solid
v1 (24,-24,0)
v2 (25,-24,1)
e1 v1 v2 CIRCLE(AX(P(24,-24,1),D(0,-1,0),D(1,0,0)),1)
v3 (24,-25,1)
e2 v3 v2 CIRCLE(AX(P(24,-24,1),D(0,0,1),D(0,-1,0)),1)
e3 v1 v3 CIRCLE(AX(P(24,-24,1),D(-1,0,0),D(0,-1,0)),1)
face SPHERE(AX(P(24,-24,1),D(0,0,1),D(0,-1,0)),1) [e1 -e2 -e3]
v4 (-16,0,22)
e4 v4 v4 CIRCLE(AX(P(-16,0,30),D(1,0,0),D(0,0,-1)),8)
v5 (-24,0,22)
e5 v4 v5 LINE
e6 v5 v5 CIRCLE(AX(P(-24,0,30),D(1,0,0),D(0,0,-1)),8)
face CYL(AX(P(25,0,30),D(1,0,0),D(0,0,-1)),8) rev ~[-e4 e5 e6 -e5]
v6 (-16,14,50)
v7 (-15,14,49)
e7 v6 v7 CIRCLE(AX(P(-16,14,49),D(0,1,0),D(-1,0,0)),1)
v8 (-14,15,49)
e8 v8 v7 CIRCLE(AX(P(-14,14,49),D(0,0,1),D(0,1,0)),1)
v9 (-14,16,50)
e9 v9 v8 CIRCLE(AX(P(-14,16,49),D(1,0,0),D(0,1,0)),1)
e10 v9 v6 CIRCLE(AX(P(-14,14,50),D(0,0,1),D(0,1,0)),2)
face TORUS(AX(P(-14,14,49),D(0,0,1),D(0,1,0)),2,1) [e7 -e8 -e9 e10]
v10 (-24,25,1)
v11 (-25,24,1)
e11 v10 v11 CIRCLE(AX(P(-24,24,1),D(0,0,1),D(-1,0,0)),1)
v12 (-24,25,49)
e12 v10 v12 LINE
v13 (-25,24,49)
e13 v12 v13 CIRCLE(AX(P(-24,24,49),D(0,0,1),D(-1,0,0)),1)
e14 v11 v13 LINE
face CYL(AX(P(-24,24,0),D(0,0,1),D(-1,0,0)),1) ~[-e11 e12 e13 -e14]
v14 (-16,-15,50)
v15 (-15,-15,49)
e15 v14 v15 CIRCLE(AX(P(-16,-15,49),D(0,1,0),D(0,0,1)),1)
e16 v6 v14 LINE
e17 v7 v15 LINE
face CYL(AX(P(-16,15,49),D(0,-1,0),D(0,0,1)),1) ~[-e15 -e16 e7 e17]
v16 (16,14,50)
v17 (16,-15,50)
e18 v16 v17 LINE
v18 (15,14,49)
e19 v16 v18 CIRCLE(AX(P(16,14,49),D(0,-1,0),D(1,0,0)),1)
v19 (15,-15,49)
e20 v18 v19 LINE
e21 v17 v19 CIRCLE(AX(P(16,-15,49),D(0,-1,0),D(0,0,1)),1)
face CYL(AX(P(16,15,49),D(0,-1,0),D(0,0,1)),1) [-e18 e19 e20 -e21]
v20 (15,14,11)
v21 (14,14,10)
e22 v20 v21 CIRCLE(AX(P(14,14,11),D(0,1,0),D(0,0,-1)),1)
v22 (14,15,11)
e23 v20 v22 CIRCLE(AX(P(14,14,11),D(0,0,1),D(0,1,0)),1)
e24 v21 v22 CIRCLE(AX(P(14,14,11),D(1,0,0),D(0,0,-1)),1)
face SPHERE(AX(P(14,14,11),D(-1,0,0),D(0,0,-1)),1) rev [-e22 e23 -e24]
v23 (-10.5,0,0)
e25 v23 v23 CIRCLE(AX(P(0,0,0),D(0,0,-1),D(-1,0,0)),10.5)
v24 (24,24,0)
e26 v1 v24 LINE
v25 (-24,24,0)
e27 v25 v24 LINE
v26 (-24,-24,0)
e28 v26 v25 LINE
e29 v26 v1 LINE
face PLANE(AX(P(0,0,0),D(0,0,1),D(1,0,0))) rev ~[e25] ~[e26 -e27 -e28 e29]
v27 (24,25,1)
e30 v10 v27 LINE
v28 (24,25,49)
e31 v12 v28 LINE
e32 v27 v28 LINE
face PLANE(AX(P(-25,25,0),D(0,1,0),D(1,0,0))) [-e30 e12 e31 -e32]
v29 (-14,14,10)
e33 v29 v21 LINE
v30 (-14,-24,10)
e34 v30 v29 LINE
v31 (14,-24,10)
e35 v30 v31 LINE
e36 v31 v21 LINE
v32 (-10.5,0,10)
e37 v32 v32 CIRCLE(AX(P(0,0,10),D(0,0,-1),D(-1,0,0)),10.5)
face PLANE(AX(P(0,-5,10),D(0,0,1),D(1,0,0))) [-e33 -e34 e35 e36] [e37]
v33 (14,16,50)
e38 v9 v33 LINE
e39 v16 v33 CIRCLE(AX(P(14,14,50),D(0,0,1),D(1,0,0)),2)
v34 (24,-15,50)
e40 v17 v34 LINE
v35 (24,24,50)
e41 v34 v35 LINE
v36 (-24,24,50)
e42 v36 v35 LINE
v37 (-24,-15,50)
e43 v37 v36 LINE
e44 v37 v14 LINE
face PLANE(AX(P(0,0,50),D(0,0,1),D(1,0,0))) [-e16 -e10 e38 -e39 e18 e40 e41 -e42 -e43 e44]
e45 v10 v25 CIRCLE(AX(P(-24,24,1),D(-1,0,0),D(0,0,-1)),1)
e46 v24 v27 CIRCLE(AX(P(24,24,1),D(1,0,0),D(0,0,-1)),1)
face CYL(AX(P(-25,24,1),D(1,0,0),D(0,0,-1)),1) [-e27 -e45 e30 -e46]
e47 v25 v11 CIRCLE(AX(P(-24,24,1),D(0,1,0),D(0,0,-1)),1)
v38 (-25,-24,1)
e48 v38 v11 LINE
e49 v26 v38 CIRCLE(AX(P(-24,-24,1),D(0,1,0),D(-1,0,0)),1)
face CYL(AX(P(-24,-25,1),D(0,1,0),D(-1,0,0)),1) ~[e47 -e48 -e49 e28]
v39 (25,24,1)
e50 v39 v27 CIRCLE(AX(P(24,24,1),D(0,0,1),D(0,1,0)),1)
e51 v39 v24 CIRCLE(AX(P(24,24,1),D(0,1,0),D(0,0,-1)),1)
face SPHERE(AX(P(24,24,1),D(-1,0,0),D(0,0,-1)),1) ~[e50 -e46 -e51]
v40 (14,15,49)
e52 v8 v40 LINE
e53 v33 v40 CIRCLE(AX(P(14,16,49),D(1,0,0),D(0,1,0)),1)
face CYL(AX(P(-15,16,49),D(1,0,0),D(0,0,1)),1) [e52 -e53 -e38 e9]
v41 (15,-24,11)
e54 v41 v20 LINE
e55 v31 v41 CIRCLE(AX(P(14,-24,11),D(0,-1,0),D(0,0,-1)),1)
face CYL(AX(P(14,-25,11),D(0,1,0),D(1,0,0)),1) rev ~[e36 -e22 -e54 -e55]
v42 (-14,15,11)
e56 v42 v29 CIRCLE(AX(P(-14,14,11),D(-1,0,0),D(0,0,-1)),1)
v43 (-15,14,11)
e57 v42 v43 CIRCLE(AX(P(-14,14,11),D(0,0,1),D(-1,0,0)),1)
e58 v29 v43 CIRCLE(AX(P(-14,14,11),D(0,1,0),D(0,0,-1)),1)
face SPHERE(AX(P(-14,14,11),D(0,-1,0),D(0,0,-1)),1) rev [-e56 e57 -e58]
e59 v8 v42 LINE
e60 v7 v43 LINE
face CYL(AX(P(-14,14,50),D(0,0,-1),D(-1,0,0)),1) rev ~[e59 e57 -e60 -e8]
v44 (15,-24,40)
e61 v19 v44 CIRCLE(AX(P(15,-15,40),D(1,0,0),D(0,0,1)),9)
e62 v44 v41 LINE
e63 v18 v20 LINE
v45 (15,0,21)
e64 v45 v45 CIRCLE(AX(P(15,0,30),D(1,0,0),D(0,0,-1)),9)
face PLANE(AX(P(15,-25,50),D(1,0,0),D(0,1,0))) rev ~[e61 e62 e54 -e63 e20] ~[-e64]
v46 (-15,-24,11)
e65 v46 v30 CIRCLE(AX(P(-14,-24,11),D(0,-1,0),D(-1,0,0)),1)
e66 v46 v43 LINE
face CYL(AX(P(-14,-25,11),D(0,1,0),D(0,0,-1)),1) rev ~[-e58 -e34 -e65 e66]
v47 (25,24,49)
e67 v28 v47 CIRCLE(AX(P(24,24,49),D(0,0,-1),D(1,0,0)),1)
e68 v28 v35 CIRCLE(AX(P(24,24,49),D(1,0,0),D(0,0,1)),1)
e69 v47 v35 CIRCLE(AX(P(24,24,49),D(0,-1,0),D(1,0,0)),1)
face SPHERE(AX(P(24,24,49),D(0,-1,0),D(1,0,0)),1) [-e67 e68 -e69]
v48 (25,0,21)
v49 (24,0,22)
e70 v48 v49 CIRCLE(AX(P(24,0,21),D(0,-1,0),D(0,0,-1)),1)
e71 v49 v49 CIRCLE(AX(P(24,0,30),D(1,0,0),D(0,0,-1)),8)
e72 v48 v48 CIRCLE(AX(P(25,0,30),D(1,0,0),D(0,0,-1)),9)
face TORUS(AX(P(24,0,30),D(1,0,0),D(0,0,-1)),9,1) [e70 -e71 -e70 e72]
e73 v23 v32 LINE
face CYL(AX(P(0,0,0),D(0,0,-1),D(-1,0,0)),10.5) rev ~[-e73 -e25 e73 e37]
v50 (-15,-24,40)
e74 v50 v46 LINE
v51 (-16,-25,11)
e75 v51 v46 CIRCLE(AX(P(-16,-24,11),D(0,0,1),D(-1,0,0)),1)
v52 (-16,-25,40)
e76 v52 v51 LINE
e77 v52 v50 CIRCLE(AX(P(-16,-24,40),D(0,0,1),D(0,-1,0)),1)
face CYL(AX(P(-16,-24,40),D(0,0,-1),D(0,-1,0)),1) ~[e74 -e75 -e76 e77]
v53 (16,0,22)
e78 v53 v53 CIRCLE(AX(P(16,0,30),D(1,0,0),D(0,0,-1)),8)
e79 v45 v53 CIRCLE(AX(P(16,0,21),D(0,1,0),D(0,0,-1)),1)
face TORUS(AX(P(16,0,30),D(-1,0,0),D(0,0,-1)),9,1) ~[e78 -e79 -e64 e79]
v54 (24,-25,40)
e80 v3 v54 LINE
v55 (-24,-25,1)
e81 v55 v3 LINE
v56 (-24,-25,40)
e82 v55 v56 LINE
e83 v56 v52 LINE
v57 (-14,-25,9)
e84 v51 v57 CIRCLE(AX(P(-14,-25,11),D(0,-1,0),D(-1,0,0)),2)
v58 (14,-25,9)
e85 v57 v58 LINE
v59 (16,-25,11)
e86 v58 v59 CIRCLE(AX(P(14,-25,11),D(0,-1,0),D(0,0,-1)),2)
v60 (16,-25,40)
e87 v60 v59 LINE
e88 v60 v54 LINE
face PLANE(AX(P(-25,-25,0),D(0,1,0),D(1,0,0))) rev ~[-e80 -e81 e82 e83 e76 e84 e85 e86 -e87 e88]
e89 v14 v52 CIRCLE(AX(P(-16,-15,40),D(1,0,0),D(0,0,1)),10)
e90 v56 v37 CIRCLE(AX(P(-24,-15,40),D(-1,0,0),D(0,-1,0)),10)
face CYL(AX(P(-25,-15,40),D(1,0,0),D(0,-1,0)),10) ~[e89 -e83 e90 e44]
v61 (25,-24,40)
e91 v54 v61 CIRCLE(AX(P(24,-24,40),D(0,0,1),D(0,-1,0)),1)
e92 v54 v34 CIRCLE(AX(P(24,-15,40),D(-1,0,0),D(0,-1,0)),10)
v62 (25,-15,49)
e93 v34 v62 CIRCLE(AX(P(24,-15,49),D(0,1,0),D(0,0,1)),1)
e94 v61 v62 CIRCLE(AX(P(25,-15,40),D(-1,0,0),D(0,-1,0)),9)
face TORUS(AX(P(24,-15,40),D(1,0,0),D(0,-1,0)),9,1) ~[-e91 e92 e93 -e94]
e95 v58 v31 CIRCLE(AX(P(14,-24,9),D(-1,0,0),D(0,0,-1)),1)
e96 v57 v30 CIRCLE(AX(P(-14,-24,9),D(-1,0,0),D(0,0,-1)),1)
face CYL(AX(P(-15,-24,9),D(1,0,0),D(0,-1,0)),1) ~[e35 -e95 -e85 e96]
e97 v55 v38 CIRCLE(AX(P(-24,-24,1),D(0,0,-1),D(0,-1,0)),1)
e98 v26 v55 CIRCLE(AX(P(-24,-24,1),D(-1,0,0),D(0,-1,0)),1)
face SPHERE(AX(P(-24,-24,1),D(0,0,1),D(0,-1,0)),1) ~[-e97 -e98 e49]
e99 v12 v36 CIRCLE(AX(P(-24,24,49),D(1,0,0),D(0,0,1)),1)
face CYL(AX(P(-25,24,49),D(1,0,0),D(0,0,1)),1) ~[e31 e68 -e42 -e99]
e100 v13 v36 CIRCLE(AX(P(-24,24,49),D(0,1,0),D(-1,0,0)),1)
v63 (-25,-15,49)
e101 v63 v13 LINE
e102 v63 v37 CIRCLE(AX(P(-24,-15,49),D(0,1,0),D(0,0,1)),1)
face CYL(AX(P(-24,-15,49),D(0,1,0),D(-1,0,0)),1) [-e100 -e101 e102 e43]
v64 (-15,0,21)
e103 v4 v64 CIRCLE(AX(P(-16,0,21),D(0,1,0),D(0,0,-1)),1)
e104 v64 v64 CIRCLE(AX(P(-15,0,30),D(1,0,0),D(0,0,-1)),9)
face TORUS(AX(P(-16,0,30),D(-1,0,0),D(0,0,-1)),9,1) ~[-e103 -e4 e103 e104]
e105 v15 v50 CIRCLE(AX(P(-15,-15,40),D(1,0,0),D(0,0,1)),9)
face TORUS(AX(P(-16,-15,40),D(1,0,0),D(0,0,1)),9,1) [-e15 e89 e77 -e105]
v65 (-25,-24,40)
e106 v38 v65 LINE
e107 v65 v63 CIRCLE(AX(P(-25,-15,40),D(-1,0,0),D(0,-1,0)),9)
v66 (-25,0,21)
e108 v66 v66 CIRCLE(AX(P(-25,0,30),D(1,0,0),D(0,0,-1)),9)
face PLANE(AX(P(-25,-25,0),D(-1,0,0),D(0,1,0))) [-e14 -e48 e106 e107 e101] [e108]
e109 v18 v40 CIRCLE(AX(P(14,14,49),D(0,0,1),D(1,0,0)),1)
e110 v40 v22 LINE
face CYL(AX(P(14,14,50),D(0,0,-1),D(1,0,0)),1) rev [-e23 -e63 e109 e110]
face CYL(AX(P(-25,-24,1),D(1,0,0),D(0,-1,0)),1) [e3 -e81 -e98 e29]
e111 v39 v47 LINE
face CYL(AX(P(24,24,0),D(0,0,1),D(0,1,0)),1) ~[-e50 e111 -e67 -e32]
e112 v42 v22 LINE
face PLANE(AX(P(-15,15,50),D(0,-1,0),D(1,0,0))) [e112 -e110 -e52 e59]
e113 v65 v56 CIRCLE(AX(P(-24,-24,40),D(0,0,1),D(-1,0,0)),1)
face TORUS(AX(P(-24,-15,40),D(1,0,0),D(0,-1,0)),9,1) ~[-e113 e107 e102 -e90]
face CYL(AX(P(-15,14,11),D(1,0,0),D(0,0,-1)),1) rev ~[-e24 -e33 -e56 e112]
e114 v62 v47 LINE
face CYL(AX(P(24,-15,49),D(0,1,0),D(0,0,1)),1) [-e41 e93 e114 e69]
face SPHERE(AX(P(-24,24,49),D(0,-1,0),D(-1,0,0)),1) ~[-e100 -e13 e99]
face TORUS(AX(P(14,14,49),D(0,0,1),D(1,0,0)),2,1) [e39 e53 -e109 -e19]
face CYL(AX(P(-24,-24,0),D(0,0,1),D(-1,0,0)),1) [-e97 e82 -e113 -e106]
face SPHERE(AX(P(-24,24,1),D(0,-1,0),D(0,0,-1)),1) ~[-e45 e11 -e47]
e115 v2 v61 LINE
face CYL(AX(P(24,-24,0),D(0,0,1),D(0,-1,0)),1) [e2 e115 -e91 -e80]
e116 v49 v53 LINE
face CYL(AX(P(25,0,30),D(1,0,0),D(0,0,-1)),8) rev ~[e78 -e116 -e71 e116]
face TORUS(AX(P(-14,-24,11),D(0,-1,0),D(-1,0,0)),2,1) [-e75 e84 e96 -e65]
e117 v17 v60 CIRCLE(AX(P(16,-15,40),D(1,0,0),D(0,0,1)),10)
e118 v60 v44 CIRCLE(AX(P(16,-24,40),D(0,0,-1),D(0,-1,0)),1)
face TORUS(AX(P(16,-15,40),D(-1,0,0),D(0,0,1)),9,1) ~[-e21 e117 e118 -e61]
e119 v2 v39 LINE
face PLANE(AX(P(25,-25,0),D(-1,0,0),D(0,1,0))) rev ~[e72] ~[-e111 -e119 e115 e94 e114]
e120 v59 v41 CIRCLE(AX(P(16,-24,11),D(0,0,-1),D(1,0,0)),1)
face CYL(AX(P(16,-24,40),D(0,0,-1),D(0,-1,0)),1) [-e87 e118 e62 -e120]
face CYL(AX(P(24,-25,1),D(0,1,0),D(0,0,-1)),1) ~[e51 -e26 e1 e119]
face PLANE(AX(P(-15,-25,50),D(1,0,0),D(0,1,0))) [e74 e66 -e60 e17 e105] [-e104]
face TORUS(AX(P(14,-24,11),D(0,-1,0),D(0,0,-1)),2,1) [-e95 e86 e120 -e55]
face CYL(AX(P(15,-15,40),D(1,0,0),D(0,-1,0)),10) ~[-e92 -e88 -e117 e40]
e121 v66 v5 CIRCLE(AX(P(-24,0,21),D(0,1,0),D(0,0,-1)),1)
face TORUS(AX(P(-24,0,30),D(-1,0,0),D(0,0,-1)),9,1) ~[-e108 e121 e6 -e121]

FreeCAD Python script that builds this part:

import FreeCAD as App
import Part
import Sketcher

V = App.Vector
Q = App.Units.Quantity


def edges_at(feature, points):
    """Names of the edges that pass closest to the given points."""
    edges = feature.Shape.Edges
    near = lambda p: min(range(len(edges)), key=lambda i: edges[i].distToShape(Part.Vertex(*p))[0])
    return sorted({f"Edge{near(p) + 1}" for p in points})

doc = App.newDocument("Part")
body = doc.addObject("PartDesign::Body", "Body")

# Sketch on XY plane
sketch1 = body.newObject("Sketcher::SketchObject", "Sketch")
sketch1.AttachmentSupport = (doc.getObject("XY_Plane"), [""])
sketch1.MapMode = "FlatFace"
sketch1.addGeometry([
    Part.LineSegment(V(-25, 25, 0), V(-25, -25, 0)),
    Part.LineSegment(V(-25, -25, 0), V(25, -25, 0)),
    Part.LineSegment(V(25, -25, 0), V(25, 25, 0)),
    Part.LineSegment(V(25, 25, 0), V(-25, 25, 0)),
], False)
sketch1.addConstraint([
    Sketcher.Constraint("Coincident", 0, 2, 1, 1),
    Sketcher.Constraint("Coincident", 1, 2, 2, 1),
    Sketcher.Constraint("Coincident", 2, 2, 3, 1),
    Sketcher.Constraint("Coincident", 3, 2, 0, 1),
    Sketcher.Constraint("Vertical", 0),
    Sketcher.Constraint("Horizontal", 1),
    Sketcher.Constraint("Vertical", 2),
    Sketcher.Constraint("Horizontal", 3),
    Sketcher.Constraint("Symmetric", 0, 2, 2, 2, -1, 1),
    Sketcher.Constraint("Equal", 3, 0),
    Sketcher.Constraint("DistanceX", 1, 1, 1, 2, Q("50 mm")),
])
pad1 = body.newObject("PartDesign::Pad", "Pad")
pad1.Profile = sketch1
pad1.Length = 50

# Sketch on XY plane
sketch2 = body.newObject("Sketcher::SketchObject", "Sketch001")
sketch2.AttachmentSupport = (doc.getObject("XY_Plane"), [""])
sketch2.MapMode = "FlatFace"
sketch2.AttachmentOffset = App.Placement(V(0, 0, 50), App.Rotation())
sketch2.addGeometry([
    Part.LineSegment(V(-15, 15, 0), V(-15, -25, 0)),
    Part.LineSegment(V(-15, -25, 0), V(15, -25, 0)),
    Part.LineSegment(V(15, -25, 0), V(15, 15, 0)),
    Part.LineSegment(V(15, 15, 0), V(-15, 15, 0)),
], False)
sketch2.addConstraint([
    Sketcher.Constraint("Coincident", 0, 2, 1, 1),
    Sketcher.Constraint("Coincident", 1, 2, 2, 1),
    Sketcher.Constraint("Coincident", 2, 2, 3, 1),
    Sketcher.Constraint("Coincident", 3, 2, 0, 1),
    Sketcher.Constraint("Vertical", 0),
    Sketcher.Constraint("Horizontal", 1),
    Sketcher.Constraint("Vertical", 2),
    Sketcher.Constraint("Horizontal", 3),
    Sketcher.Constraint("DistanceX", 1, 1, 1, 2, Q("30 mm")),
    Sketcher.Constraint("DistanceY", 0, 2, 0, 1, Q("40 mm")),
    Sketcher.Constraint("DistanceX", 0, 2, -1, 1, Q("15 mm")),
    Sketcher.Constraint("DistanceY", 0, 2, -1, 1, Q("25 mm")),
])
pocket1 = body.newObject("PartDesign::Pocket", "Pocket")
pocket1.Profile = sketch2
pocket1.Length = 40

# Sketch on YZ plane
sketch3 = body.newObject("Sketcher::SketchObject", "Sketch002")
sketch3.AttachmentSupport = (doc.getObject("YZ_Plane"), [""])
sketch3.MapMode = "FlatFace"
sketch3.AttachmentOffset = App.Placement(V(0, 0, 25), App.Rotation())
sketch3.addGeometry(Part.Circle(V(0, 30, 0), V(0, 0, 1), 8), False)
sketch3.addConstraint([
    Sketcher.Constraint("PointOnObject", 0, 3, -2),
    Sketcher.Constraint("Diameter", 0, Q("16 mm")),
    Sketcher.Constraint("DistanceY", -1, 1, 0, 3, Q("30 mm")),
])
pocket2 = body.newObject("PartDesign::Pocket", "Pocket001")
pocket2.Profile = sketch3
pocket2.Length = 90

# Sketch on XY plane
sketch4 = body.newObject("Sketcher::SketchObject", "Sketch003")
sketch4.AttachmentSupport = (doc.getObject("XY_Plane"), [""])
sketch4.MapMode = "FlatFace"
sketch4.addGeometry(Part.Circle(V(0, 0, 0), V(0, 0, 1), 10), False)
sketch4.addConstraint([
    Sketcher.Constraint("Coincident", 0, 3, -1, 1),
    Sketcher.Constraint("Diameter", 0, Q("21 mm")),
])
pocket3 = body.newObject("PartDesign::Pocket", "Pocket002")
pocket3.Profile = sketch4
pocket3.Length = 90
pocket3.Reversed = True
doc.recompute()

fillet = body.newObject("PartDesign::Fillet", "Fillet")
fillet.Base = (pocket3, edges_at(pocket3, [(20, -25, 50), (-20, -25, 50)]))
fillet.Radius = 10
doc.recompute()

fillet2 = body.newObject("PartDesign::Fillet", "Fillet001")
fillet2.Base = (fillet, edges_at(fillet, [
    (-25, 5, 50),
    (-15, -5, 10),
    (-15, -25, 25),
    (0, 15, 10),
    (-15, 15, 30),
    (15, -5, 10),
    (15, 15, 30),
    (0, -25, 10),
    (15, -25, 25),
    (-15, 0, 50),
    (0, 15, 50),
    (15, 0, 50),
    (25, 5, 50),
    (25, -25, 20),
    (25, -22.071, 47.071),
    (-25, -25, 20),
    (15, -22.071, 47.071),
    (-15, -22.071, 47.071),
    (-25, -22.071, 47.071),
    (0, -25, 0),
    (-25, 0, 0),
    (0, 25, 0),
    (25, 0, 0),
    (-25, 25, 25),
    (25, 25, 25),
    (0, 25, 50),
]))
fillet2.Radius = 1
doc.recompute()

fillet3 = body.newObject("PartDesign::Fillet", "Fillet002")
fillet3.Base = (fillet2, edges_at(fillet2, [
    (-15, 0, 38),
    (-25, 0, 38),
    (15, 0, 38),
    (25, 0, 38),
]))
fillet3.Radius = 1

doc.recompute()
